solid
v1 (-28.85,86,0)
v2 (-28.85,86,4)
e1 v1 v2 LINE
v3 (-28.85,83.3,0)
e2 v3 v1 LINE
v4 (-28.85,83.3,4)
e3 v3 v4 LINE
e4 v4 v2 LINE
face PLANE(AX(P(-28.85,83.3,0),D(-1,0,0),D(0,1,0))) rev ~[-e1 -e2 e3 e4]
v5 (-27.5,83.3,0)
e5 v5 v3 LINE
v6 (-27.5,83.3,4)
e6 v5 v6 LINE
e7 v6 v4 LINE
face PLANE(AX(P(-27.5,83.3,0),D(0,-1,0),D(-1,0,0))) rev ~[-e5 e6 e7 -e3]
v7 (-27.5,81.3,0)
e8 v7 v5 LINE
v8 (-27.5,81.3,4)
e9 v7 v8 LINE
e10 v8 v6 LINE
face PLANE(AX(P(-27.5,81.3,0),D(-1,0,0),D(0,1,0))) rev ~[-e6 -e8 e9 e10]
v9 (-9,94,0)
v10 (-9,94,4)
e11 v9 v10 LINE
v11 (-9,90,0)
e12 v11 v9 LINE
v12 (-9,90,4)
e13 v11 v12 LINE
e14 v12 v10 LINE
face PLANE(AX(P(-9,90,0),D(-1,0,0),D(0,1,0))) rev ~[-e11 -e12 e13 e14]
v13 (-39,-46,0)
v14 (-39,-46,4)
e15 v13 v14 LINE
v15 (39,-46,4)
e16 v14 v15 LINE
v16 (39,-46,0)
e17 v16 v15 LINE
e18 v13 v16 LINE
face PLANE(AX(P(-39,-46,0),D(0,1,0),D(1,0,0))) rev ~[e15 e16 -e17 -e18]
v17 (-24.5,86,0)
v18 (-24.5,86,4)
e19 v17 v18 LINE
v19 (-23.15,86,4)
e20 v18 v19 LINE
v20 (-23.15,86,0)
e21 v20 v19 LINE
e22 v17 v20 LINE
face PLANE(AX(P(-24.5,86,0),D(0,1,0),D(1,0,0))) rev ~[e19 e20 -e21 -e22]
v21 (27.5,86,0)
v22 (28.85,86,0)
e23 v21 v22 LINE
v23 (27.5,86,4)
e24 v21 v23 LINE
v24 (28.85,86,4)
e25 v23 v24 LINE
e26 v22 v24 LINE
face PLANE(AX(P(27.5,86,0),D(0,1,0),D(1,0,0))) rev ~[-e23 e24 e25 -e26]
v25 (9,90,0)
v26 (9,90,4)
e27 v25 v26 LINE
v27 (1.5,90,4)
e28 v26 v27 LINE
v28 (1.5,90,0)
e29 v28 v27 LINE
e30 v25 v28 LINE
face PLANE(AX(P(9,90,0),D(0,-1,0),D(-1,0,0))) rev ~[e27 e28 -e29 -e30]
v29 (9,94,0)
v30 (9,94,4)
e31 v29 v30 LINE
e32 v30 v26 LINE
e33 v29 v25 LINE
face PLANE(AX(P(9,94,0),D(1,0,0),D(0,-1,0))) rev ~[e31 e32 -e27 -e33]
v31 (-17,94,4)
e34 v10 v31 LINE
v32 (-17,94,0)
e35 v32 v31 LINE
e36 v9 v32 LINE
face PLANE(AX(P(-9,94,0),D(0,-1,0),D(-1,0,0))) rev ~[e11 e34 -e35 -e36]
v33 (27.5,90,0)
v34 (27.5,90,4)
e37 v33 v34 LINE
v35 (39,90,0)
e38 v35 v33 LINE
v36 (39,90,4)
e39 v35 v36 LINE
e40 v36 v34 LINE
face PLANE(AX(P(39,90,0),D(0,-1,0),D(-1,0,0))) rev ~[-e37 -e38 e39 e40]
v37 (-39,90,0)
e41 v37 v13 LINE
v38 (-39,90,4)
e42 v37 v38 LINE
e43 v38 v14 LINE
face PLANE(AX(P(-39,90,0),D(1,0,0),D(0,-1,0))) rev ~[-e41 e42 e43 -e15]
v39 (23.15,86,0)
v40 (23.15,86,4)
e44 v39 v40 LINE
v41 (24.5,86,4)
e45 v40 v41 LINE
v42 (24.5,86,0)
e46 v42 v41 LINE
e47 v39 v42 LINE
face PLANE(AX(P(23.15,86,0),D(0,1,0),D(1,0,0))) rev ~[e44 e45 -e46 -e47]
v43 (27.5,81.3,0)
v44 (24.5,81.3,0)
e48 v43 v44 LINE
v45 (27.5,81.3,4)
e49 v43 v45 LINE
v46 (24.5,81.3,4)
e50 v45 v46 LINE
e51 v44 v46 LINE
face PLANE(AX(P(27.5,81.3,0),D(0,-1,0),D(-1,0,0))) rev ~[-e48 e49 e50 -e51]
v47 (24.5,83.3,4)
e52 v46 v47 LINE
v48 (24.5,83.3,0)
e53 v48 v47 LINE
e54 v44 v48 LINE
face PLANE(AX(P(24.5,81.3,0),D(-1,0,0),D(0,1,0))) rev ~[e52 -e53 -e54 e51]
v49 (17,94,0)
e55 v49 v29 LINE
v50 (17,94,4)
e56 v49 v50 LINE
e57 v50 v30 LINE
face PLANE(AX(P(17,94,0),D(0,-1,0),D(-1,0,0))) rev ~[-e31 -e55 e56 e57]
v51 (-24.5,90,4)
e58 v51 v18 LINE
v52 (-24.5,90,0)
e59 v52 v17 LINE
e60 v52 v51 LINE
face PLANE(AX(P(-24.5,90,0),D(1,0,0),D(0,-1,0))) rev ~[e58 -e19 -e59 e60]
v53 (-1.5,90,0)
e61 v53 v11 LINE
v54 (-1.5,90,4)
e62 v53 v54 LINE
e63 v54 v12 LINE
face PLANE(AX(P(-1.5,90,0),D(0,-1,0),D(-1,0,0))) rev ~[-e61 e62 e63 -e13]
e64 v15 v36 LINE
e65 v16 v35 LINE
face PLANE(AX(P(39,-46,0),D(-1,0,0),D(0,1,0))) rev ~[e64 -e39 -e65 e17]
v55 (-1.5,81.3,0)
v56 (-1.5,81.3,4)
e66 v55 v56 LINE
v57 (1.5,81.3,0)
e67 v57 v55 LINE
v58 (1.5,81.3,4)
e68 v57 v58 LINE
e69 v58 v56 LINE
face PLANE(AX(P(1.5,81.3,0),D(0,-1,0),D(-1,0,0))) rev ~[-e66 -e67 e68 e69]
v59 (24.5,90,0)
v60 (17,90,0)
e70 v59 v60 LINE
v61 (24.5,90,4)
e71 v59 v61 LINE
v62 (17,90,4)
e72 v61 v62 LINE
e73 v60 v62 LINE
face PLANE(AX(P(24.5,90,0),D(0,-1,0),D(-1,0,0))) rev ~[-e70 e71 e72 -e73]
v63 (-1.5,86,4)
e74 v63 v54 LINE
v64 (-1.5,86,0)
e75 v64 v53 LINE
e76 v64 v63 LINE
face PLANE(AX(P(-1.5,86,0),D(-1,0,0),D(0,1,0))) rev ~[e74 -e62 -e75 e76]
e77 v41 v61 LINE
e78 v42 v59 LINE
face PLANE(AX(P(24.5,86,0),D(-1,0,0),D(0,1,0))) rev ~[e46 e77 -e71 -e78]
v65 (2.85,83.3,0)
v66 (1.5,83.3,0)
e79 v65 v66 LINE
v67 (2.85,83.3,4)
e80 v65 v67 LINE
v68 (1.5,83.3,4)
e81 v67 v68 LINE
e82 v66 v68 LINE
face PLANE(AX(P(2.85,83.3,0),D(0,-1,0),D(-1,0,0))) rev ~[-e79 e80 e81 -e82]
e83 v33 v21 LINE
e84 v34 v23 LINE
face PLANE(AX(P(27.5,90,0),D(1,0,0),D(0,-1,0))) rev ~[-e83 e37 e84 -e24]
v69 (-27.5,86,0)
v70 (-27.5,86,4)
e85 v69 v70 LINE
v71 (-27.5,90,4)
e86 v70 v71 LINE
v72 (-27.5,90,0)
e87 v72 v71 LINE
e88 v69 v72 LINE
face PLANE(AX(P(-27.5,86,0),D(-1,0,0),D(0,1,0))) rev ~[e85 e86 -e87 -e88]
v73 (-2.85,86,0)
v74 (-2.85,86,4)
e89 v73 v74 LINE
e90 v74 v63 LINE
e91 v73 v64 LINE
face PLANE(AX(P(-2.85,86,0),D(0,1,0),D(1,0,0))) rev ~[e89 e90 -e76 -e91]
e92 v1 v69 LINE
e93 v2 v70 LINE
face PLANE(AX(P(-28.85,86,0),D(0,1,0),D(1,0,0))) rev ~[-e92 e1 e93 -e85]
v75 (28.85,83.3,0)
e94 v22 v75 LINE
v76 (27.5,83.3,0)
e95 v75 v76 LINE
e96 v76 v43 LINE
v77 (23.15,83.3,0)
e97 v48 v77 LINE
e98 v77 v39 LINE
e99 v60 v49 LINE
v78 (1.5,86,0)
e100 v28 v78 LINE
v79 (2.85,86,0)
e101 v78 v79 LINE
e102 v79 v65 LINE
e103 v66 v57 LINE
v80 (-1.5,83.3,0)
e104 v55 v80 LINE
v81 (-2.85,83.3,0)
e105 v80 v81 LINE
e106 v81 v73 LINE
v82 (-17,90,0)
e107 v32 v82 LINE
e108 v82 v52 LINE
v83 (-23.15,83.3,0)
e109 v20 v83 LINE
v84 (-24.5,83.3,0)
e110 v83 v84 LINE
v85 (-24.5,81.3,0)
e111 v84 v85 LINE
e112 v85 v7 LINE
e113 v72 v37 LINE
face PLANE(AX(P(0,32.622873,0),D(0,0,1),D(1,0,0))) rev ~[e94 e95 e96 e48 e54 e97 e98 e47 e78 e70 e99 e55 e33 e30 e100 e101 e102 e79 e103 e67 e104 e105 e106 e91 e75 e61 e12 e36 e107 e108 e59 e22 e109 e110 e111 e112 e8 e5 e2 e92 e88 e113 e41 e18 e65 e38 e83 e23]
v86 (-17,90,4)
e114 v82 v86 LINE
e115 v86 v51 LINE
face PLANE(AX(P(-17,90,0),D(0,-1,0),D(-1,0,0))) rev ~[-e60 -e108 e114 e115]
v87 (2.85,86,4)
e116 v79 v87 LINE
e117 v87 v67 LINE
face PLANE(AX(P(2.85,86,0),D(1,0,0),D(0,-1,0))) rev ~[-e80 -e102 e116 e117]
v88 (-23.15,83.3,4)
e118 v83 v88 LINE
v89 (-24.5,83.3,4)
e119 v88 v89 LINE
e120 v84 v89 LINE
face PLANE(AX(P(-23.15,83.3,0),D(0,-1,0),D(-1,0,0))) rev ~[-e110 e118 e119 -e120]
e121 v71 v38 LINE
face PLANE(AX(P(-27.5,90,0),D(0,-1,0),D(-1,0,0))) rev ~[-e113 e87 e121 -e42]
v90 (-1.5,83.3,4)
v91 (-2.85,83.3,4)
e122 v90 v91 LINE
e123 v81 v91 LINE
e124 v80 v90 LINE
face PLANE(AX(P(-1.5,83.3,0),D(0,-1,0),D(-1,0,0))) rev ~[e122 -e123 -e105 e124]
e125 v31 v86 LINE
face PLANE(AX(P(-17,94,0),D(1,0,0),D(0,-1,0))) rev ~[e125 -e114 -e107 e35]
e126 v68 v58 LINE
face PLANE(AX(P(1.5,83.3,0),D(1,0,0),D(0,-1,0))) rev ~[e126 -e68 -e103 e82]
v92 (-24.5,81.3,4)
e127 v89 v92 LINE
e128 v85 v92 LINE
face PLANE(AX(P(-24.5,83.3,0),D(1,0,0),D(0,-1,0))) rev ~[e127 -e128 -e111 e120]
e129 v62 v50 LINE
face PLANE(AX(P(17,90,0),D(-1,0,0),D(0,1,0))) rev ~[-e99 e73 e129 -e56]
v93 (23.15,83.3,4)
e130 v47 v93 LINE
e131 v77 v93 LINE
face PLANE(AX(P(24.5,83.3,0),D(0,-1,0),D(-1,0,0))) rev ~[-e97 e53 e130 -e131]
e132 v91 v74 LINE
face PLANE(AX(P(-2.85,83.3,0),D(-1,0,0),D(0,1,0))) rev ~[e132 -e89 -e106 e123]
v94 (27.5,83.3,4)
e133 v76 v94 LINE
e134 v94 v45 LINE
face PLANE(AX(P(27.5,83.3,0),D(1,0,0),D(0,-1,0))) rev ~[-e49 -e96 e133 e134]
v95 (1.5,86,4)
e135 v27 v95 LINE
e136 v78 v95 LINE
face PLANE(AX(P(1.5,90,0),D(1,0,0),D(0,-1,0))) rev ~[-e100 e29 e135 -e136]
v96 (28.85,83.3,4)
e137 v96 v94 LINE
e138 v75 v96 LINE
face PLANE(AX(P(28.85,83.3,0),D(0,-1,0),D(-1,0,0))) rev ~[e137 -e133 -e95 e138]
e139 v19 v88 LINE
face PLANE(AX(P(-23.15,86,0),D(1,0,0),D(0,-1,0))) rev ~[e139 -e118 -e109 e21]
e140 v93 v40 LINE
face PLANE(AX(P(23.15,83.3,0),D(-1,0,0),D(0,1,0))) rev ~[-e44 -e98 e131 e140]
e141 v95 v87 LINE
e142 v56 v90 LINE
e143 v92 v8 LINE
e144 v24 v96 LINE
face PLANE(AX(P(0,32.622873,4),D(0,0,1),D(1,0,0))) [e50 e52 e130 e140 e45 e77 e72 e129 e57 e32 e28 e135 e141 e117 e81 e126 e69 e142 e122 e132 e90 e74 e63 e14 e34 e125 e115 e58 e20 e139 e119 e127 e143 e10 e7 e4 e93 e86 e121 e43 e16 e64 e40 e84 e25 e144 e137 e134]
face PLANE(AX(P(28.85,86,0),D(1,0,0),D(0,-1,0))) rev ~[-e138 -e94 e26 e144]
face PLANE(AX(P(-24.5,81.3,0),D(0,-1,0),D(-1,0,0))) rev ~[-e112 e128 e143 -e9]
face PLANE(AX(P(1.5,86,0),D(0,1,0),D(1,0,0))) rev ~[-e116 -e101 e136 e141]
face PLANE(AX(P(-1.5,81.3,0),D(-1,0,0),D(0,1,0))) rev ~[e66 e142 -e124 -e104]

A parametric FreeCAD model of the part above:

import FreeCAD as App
import Part
import Sketcher

V = App.Vector
Q = App.Units.Quantity

doc = App.newDocument("Part")
body = doc.addObject("PartDesign::Body", "Body")

# Sketch on XY plane
sketch1 = body.newObject("Sketcher::SketchObject", "Sketch")
sketch1.AttachmentSupport = (doc.getObject("XY_Plane"), [""])
sketch1.MapMode = "FlatFace"
sketch1.addGeometry(Part.LineSegment(V(-39, 90, 0), V(-39, -46, 0)), False)
sketch1.addGeometry(Part.LineSegment(V(-39, -46, 0), V(39, -46, 0)), False)
sketch1.addGeometry(Part.LineSegment(V(39, -46, 0), V(39, 90, 0)), False)
sketch1.addGeometry(Part.LineSegment(V(39, 90, 0), V(27.5, 90, 0)), False)
sketch1.addGeometry(Part.LineSegment(V(27.5, 90, 0), V(27.5, 86, 0)), False)
sketch1.addGeometry(Part.LineSegment(V(27.5, 86, 0), V(28.9, 86, 0)), False)
sketch1.addGeometry(Part.LineSegment(V(28.9, 86, 0), V(28.9, 83.3, 0)), False)
sketch1.addGeometry(Part.LineSegment(V(28.9, 83.3, 0), V(27.5, 83.3, 0)), False)
sketch1.addGeometry(Part.LineSegment(V(27.5, 83.3, 0), V(27.5, 81.3, 0)), False)
sketch1.addGeometry(Part.LineSegment(V(27.5, 81.3, 0), V(24.5, 81.3, 0)), False)
sketch1.addGeometry(Part.LineSegment(V(24.5, 81.3, 0), V(24.5, 83.3, 0)), False)
sketch1.addGeometry(Part.LineSegment(V(24.5, 83.3, 0), V(23.1, 83.3, 0)), False)
sketch1.addGeometry(Part.LineSegment(V(23.1, 83.3, 0), V(23.1, 86, 0)), False)
sketch1.addGeometry(Part.LineSegment(V(23.1, 86, 0), V(24.5, 86, 0)), False)
sketch1.addGeometry(Part.LineSegment(V(24.5, 86, 0), V(24.5, 90, 0)), False)
sketch1.addGeometry(Part.LineSegment(V(24.5, 90, 0), V(17, 90, 0)), False)
sketch1.addGeometry(Part.LineSegment(V(17, 90, 0), V(17, 94, 0)), False)
sketch1.addGeometry(Part.LineSegment(V(17, 94, 0), V(9, 94, 0)), False)
sketch1.addGeometry(Part.LineSegment(V(9, 94, 0), V(9, 90, 0)), False)
sketch1.addGeometry(Part.LineSegment(V(9, 90, 0), V(1.5, 90, 0)), False)
sketch1.addGeometry(Part.LineSegment(V(1.5, 90, 0), V(1.5, 86, 0)), False)
sketch1.addGeometry(Part.LineSegment(V(1.5, 86, 0), V(2.9, 86, 0)), False)
sketch1.addGeometry(Part.LineSegment(V(2.9, 86, 0), V(2.9, 83.3, 0)), False)
sketch1.addGeometry(Part.LineSegment(V(2.9, 83.3, 0), V(1.5, 83.3, 0)), False)
sketch1.addGeometry(Part.LineSegment(V(1.5, 83.3, 0), V(1.5, 81.3, 0)), False)
sketch1.addGeometry(Part.LineSegment(V(1.5, 81.3, 0), V(-1.5, 81.3, 0)), False)
sketch1.addGeometry(Part.LineSegment(V(-1.5, 81.3, 0), V(-1.5, 83.3, 0)), False)
sketch1.addGeometry(Part.LineSegment(V(-1.5, 83.3, 0), V(-2.9, 83.3, 0)), False)
sketch1.addGeometry(Part.LineSegment(V(-2.9, 83.3, 0), V(-2.9, 86, 0)), False)
sketch1.addGeometry(Part.LineSegment(V(-2.9, 86, 0), V(-1.5, 86, 0)), False)
sketch1.addGeometry(Part.LineSegment(V(-1.5, 86, 0), V(-1.5, 90, 0)), False)
sketch1.addGeometry(Part.LineSegment(V(-1.5, 90, 0), V(-9, 90, 0)), False)
sketch1.addGeometry(Part.LineSegment(V(-9, 90, 0), V(-9, 94, 0)), False)
sketch1.addGeometry(Part.LineSegment(V(-9, 94, 0), V(-17, 94, 0)), False)
sketch1.addGeometry(Part.LineSegment(V(-17, 94, 0), V(-17, 90, 0)), False)
sketch1.addGeometry(Part.LineSegment(V(-17, 90, 0), V(-24.5, 90, 0)), False)
sketch1.addGeometry(Part.LineSegment(V(-24.5, 90, 0), V(-24.5, 86, 0)), False)
sketch1.addGeometry(Part.LineSegment(V(-24.5, 86, 0), V(-23.1, 86, 0)), False)
sketch1.addGeometry(Part.LineSegment(V(-23.1, 86, 0), V(-23.1, 83.3, 0)), False)
sketch1.addGeometry(Part.LineSegment(V(-23.1, 83.3, 0), V(-24.5, 83.3, 0)), False)
sketch1.addGeometry(Part.LineSegment(V(-24.5, 83.3, 0), V(-24.5, 81.3, 0)), False)
sketch1.addGeometry(Part.LineSegment(V(-24.5, 81.3, 0), V(-27.5, 81.3, 0)), False)
sketch1.addGeometry(Part.LineSegment(V(-27.5, 81.3, 0), V(-27.5, 83.3, 0)), False)
sketch1.addGeometry(Part.LineSegment(V(-27.5, 83.3, 0), V(-28.9, 83.3, 0)), False)
sketch1.addGeometry(Part.LineSegment(V(-28.9, 83.3, 0), V(-28.9, 86, 0)), False)
sketch1.addGeometry(Part.LineSegment(V(-28.9, 86, 0), V(-27.5, 86, 0)), False)
sketch1.addGeometry(Part.LineSegment(V(-27.5, 86, 0), V(-27.5, 90, 0)), False)
sketch1.addGeometry(Part.LineSegment(V(-27.5, 90, 0), V(-39, 90, 0)), False)
sketch1.addConstraint(Sketcher.Constraint("Coincident", 0, 2, 1, 1))
sketch1.addConstraint(Sketcher.Constraint("Coincident", 1, 2, 2, 1))
sketch1.addConstraint(Sketcher.Constraint("Coincident", 2, 2, 3, 1))
sketch1.addConstraint(Sketcher.Constraint("Coincident", 3, 2, 4, 1))
sketch1.addConstraint(Sketcher.Constraint("Coincident", 4, 2, 5, 1))
sketch1.addConstraint(Sketcher.Constraint("Coincident", 5, 2, 6, 1))
sketch1.addConstraint(Sketcher.Constraint("Coincident", 6, 2, 7, 1))
sketch1.addConstraint(Sketcher.Constraint("Coincident", 7, 2, 8, 1))
sketch1.addConstraint(Sketcher.Constraint("Coincident", 8, 2, 9, 1))
sketch1.addConstraint(Sketcher.Constraint("Coincident", 9, 2, 10, 1))
sketch1.addConstraint(Sketcher.Constraint("Coincident", 10, 2, 11, 1))
sketch1.addConstraint(Sketcher.Constraint("Coincident", 11, 2, 12, 1))
sketch1.addConstraint(Sketcher.Constraint("Coincident", 12, 2, 13, 1))
sketch1.addConstraint(Sketcher.Constraint("Coincident", 13, 2, 14, 1))
sketch1.addConstraint(Sketcher.Constraint("Coincident", 14, 2, 15, 1))
sketch1.addConstraint(Sketcher.Constraint("Coincident", 15, 2, 16, 1))
sketch1.addConstraint(Sketcher.Constraint("Coincident", 16, 2, 17, 1))
sketch1.addConstraint(Sketcher.Constraint("Coincident", 17, 2, 18, 1))
sketch1.addConstraint(Sketcher.Constraint("Coincident", 18, 2, 19, 1))
sketch1.addConstraint(Sketcher.Constraint("Coincident", 19, 2, 20, 1))
sketch1.addConstraint(Sketcher.Constraint("Coincident", 20, 2, 21, 1))
sketch1.addConstraint(Sketcher.Constraint("Coincident", 21, 2, 22, 1))
sketch1.addConstraint(Sketcher.Constraint("Coincident", 22, 2, 23, 1))
sketch1.addConstraint(Sketcher.Constraint("Coincident", 23, 2, 24, 1))
sketch1.addConstraint(Sketcher.Constraint("Coincident", 24, 2, 25, 1))
sketch1.addConstraint(Sketcher.Constraint("Coincident", 25, 2, 26, 1))
sketch1.addConstraint(Sketcher.Constraint("Coincident", 26, 2, 27, 1))
sketch1.addConstraint(Sketcher.Constraint("Coincident", 27, 2, 28, 1))
sketch1.addConstraint(Sketcher.Constraint("Coincident", 28, 2, 29, 1))
sketch1.addConstraint(Sketcher.Constraint("Coincident", 29, 2, 30, 1))
sketch1.addConstraint(Sketcher.Constraint("Coincident", 30, 2, 31, 1))
sketch1.addConstraint(Sketcher.Constraint("Coincident", 31, 2, 32, 1))
sketch1.addConstraint(Sketcher.Constraint("Coincident", 32, 2, 33, 1))
sketch1.addConstraint(Sketcher.Constraint("Coincident", 33, 2, 34, 1))
sketch1.addConstraint(Sketcher.Constraint("Coincident", 34, 2, 35, 1))
sketch1.addConstraint(Sketcher.Constraint("Coincident", 35, 2, 36, 1))
sketch1.addConstraint(Sketcher.Constraint("Coincident", 36, 2, 37, 1))
sketch1.addConstraint(Sketcher.Constraint("Coincident", 37, 2, 38, 1))
sketch1.addConstraint(Sketcher.Constraint("Coincident", 38, 2, 39, 1))
sketch1.addConstraint(Sketcher.Constraint("Coincident", 39, 2, 40, 1))
sketch1.addConstraint(Sketcher.Constraint("Coincident", 40, 2, 41, 1))
sketch1.addConstraint(Sketcher.Constraint("Coincident", 41, 2, 42, 1))
sketch1.addConstraint(Sketcher.Constraint("Coincident", 42, 2, 43, 1))
sketch1.addConstraint(Sketcher.Constraint("Coincident", 43, 2, 44, 1))
sketch1.addConstraint(Sketcher.Constraint("Coincident", 44, 2, 45, 1))
sketch1.addConstraint(Sketcher.Constraint("Coincident", 45, 2, 46, 1))
sketch1.addConstraint(Sketcher.Constraint("Coincident", 46, 2, 47, 1))
sketch1.addConstraint(Sketcher.Constraint("Coincident", 47, 2, 0, 1))
sketch1.addConstraint(Sketcher.Constraint("Vertical", 0))
sketch1.addConstraint(Sketcher.Constraint("Horizontal", 1))
sketch1.addConstraint(Sketcher.Constraint("Vertical", 2))
sketch1.addConstraint(Sketcher.Constraint("Horizontal", 3))
sketch1.addConstraint(Sketcher.Constraint("Vertical", 4))
sketch1.addConstraint(Sketcher.Constraint("Horizontal", 5))
sketch1.addConstraint(Sketcher.Constraint("Vertical", 6))
sketch1.addConstraint(Sketcher.Constraint("Horizontal", 7))
sketch1.addConstraint(Sketcher.Constraint("Vertical", 8))
sketch1.addConstraint(Sketcher.Constraint("Horizontal", 9))
sketch1.addConstraint(Sketcher.Constraint("Vertical", 10))
sketch1.addConstraint(Sketcher.Constraint("Horizontal", 11))
sketch1.addConstraint(Sketcher.Constraint("Vertical", 12))
sketch1.addConstraint(Sketcher.Constraint("Horizontal", 13))
sketch1.addConstraint(Sketcher.Constraint("Vertical", 14))
sketch1.addConstraint(Sketcher.Constraint("Horizontal", 15))
sketch1.addConstraint(Sketcher.Constraint("Vertical", 16))
sketch1.addConstraint(Sketcher.Constraint("Horizontal", 17))
sketch1.addConstraint(Sketcher.Constraint("Vertical", 18))
sketch1.addConstraint(Sketcher.Constraint("Horizontal", 19))
sketch1.addConstraint(Sketcher.Constraint("Vertical", 20))
sketch1.addConstraint(Sketcher.Constraint("Horizontal", 21))
sketch1.addConstraint(Sketcher.Constraint("Vertical", 22))
sketch1.addConstraint(Sketcher.Constraint("Horizontal", 23))
sketch1.addConstraint(Sketcher.Constraint("Vertical", 24))
sketch1.addConstraint(Sketcher.Constraint("Horizontal", 25))
sketch1.addConstraint(Sketcher.Constraint("Vertical", 26))
sketch1.addConstraint(Sketcher.Constraint("Horizontal", 27))
sketch1.addConstraint(Sketcher.Constraint("Vertical", 28))
sketch1.addConstraint(Sketcher.Constraint("Horizontal", 29))
sketch1.addConstraint(Sketcher.Constraint("Vertical", 30))
sketch1.addConstraint(Sketcher.Constraint("Horizontal", 31))
sketch1.addConstraint(Sketcher.Constraint("Vertical", 32))
sketch1.addConstraint(Sketcher.Constraint("Horizontal", 33))
sketch1.addConstraint(Sketcher.Constraint("Vertical", 34))
sketch1.addConstraint(Sketcher.Constraint("Horizontal", 35))
sketch1.addConstraint(Sketcher.Constraint("Vertical", 36))
sketch1.addConstraint(Sketcher.Constraint("Horizontal", 37))
sketch1.addConstraint(Sketcher.Constraint("Vertical", 38))
sketch1.addConstraint(Sketcher.Constraint("Horizontal", 39))
sketch1.addConstraint(Sketcher.Constraint("Vertical", 40))
sketch1.addConstraint(Sketcher.Constraint("Horizontal", 41))
sketch1.addConstraint(Sketcher.Constraint("Vertical", 42))
sketch1.addConstraint(Sketcher.Constraint("Horizontal", 43))
sketch1.addConstraint(Sketcher.Constraint("Vertical", 44))
sketch1.addConstraint(Sketcher.Constraint("Horizontal", 45))
sketch1.addConstraint(Sketcher.Constraint("Vertical", 46))
sketch1.addConstraint(Sketcher.Constraint("Horizontal", 47))
sketch1.addConstraint(Sketcher.Constraint("Symmetric", 23, 2, 26, 2, -2))
sketch1.addConstraint(Sketcher.Constraint("Symmetric", 21, 2, 28, 2, -2))
sketch1.addConstraint(Sketcher.Constraint("Symmetric", 19, 2, 30, 2, -2))
sketch1.addConstraint(Sketcher.Constraint("Symmetric", 17, 2, 32, 2, -2))
sketch1.addConstraint(Sketcher.Constraint("Symmetric", 15, 2, 34, 2, -2))
sketch1.addConstraint(Sketcher.Constraint("Symmetric", 13, 2, 36, 2, -2))
sketch1.addConstraint(Sketcher.Constraint("Symmetric", 11, 2, 38, 2, -2))
sketch1.addConstraint(Sketcher.Constraint("Symmetric", 9, 2, 40, 2, -2))
sketch1.addConstraint(Sketcher.Constraint("Symmetric", 7, 2, 42, 2, -2))
sketch1.addConstraint(Sketcher.Constraint("Symmetric", 5, 2, 44, 2, -2))
sketch1.addConstraint(Sketcher.Constraint("Symmetric", 3, 2, 46, 2, -2))
sketch1.addConstraint(Sketcher.Constraint("Horizontal", 7, 2, 10, 2))
sketch1.addConstraint(Sketcher.Constraint("Horizontal", 5, 2, 12, 2))
sketch1.addConstraint(Sketcher.Constraint("Horizontal", 3, 2, 14, 2))
sketch1.addConstraint(Sketcher.Constraint("Horizontal", 15, 2, 18, 2))
sketch1.addConstraint(Sketcher.Constraint("Horizontal", 13, 2, 20, 2))
sketch1.addConstraint(Sketcher.Constraint("Horizontal", 11, 2, 22, 2))
sketch1.addConstraint(Sketcher.Constraint("Horizontal", 9, 2, 24, 2))
sketch1.addConstraint(Sketcher.Constraint("Vertical", 4, 2, 7, 2))
sketch1.addConstraint(Sketcher.Constraint("Vertical", 10, 2, 13, 2))
sketch1.addConstraint(Sketcher.Constraint("Vertical", 20, 2, 23, 2))
sketch1.addConstraint(Sketcher.Constraint("Equal", 7, 11))
sketch1.addConstraint(Sketcher.Constraint("Equal", 15, 19))
sketch1.addConstraint(Sketcher.Constraint("Equal", 13, 21))
sketch1.addConstraint(Sketcher.Constraint("Equal", 9, 25))
sketch1.addConstraint(Sketcher.Constraint("Equal", 3, 47))
sketch1.addConstraint(Sketcher.Constraint("Equal", 14, 16))
sketch1.addConstraint(Sketcher.Constraint("DistanceX", 1, 1, 1, 2, Q("78 mm")))
sketch1.addConstraint(Sketcher.Constraint("DistanceX", 9, 2, 9, 1, Q("3 mm")))
sketch1.addConstraint(Sketcher.Constraint("DistanceX", 17, 2, 17, 1, Q("8 mm")))
sketch1.addConstraint(Sketcher.Constraint("DistanceY", 0, 2, 0, 1, Q("136 mm")))
sketch1.addConstraint(Sketcher.Constraint("DistanceY", 4, 2, 4, 1, Q("4 mm")))
sketch1.addConstraint(Sketcher.Constraint("DistanceY", 8, 2, 8, 1, Q("2 mm")))
sketch1.addConstraint(Sketcher.Constraint("DistanceX", 3, 2, 3, 1, Q("11.5 mm")))
sketch1.addConstraint(Sketcher.Constraint("DistanceY", 6, 2, 6, 1, Q("2.7 mm")))
sketch1.addConstraint(Sketcher.Constraint("DistanceY", 0, 2, -1, 1, Q("46 mm")))
sketch1.addConstraint(Sketcher.Constraint("DistanceX", 5, 1, 5, 2, Q("1.35 mm")))
pad1 = body.newObject("PartDesign::Pad", "Pad")
pad1.Profile = sketch1
pad1.Length = 4

doc.recompute()
